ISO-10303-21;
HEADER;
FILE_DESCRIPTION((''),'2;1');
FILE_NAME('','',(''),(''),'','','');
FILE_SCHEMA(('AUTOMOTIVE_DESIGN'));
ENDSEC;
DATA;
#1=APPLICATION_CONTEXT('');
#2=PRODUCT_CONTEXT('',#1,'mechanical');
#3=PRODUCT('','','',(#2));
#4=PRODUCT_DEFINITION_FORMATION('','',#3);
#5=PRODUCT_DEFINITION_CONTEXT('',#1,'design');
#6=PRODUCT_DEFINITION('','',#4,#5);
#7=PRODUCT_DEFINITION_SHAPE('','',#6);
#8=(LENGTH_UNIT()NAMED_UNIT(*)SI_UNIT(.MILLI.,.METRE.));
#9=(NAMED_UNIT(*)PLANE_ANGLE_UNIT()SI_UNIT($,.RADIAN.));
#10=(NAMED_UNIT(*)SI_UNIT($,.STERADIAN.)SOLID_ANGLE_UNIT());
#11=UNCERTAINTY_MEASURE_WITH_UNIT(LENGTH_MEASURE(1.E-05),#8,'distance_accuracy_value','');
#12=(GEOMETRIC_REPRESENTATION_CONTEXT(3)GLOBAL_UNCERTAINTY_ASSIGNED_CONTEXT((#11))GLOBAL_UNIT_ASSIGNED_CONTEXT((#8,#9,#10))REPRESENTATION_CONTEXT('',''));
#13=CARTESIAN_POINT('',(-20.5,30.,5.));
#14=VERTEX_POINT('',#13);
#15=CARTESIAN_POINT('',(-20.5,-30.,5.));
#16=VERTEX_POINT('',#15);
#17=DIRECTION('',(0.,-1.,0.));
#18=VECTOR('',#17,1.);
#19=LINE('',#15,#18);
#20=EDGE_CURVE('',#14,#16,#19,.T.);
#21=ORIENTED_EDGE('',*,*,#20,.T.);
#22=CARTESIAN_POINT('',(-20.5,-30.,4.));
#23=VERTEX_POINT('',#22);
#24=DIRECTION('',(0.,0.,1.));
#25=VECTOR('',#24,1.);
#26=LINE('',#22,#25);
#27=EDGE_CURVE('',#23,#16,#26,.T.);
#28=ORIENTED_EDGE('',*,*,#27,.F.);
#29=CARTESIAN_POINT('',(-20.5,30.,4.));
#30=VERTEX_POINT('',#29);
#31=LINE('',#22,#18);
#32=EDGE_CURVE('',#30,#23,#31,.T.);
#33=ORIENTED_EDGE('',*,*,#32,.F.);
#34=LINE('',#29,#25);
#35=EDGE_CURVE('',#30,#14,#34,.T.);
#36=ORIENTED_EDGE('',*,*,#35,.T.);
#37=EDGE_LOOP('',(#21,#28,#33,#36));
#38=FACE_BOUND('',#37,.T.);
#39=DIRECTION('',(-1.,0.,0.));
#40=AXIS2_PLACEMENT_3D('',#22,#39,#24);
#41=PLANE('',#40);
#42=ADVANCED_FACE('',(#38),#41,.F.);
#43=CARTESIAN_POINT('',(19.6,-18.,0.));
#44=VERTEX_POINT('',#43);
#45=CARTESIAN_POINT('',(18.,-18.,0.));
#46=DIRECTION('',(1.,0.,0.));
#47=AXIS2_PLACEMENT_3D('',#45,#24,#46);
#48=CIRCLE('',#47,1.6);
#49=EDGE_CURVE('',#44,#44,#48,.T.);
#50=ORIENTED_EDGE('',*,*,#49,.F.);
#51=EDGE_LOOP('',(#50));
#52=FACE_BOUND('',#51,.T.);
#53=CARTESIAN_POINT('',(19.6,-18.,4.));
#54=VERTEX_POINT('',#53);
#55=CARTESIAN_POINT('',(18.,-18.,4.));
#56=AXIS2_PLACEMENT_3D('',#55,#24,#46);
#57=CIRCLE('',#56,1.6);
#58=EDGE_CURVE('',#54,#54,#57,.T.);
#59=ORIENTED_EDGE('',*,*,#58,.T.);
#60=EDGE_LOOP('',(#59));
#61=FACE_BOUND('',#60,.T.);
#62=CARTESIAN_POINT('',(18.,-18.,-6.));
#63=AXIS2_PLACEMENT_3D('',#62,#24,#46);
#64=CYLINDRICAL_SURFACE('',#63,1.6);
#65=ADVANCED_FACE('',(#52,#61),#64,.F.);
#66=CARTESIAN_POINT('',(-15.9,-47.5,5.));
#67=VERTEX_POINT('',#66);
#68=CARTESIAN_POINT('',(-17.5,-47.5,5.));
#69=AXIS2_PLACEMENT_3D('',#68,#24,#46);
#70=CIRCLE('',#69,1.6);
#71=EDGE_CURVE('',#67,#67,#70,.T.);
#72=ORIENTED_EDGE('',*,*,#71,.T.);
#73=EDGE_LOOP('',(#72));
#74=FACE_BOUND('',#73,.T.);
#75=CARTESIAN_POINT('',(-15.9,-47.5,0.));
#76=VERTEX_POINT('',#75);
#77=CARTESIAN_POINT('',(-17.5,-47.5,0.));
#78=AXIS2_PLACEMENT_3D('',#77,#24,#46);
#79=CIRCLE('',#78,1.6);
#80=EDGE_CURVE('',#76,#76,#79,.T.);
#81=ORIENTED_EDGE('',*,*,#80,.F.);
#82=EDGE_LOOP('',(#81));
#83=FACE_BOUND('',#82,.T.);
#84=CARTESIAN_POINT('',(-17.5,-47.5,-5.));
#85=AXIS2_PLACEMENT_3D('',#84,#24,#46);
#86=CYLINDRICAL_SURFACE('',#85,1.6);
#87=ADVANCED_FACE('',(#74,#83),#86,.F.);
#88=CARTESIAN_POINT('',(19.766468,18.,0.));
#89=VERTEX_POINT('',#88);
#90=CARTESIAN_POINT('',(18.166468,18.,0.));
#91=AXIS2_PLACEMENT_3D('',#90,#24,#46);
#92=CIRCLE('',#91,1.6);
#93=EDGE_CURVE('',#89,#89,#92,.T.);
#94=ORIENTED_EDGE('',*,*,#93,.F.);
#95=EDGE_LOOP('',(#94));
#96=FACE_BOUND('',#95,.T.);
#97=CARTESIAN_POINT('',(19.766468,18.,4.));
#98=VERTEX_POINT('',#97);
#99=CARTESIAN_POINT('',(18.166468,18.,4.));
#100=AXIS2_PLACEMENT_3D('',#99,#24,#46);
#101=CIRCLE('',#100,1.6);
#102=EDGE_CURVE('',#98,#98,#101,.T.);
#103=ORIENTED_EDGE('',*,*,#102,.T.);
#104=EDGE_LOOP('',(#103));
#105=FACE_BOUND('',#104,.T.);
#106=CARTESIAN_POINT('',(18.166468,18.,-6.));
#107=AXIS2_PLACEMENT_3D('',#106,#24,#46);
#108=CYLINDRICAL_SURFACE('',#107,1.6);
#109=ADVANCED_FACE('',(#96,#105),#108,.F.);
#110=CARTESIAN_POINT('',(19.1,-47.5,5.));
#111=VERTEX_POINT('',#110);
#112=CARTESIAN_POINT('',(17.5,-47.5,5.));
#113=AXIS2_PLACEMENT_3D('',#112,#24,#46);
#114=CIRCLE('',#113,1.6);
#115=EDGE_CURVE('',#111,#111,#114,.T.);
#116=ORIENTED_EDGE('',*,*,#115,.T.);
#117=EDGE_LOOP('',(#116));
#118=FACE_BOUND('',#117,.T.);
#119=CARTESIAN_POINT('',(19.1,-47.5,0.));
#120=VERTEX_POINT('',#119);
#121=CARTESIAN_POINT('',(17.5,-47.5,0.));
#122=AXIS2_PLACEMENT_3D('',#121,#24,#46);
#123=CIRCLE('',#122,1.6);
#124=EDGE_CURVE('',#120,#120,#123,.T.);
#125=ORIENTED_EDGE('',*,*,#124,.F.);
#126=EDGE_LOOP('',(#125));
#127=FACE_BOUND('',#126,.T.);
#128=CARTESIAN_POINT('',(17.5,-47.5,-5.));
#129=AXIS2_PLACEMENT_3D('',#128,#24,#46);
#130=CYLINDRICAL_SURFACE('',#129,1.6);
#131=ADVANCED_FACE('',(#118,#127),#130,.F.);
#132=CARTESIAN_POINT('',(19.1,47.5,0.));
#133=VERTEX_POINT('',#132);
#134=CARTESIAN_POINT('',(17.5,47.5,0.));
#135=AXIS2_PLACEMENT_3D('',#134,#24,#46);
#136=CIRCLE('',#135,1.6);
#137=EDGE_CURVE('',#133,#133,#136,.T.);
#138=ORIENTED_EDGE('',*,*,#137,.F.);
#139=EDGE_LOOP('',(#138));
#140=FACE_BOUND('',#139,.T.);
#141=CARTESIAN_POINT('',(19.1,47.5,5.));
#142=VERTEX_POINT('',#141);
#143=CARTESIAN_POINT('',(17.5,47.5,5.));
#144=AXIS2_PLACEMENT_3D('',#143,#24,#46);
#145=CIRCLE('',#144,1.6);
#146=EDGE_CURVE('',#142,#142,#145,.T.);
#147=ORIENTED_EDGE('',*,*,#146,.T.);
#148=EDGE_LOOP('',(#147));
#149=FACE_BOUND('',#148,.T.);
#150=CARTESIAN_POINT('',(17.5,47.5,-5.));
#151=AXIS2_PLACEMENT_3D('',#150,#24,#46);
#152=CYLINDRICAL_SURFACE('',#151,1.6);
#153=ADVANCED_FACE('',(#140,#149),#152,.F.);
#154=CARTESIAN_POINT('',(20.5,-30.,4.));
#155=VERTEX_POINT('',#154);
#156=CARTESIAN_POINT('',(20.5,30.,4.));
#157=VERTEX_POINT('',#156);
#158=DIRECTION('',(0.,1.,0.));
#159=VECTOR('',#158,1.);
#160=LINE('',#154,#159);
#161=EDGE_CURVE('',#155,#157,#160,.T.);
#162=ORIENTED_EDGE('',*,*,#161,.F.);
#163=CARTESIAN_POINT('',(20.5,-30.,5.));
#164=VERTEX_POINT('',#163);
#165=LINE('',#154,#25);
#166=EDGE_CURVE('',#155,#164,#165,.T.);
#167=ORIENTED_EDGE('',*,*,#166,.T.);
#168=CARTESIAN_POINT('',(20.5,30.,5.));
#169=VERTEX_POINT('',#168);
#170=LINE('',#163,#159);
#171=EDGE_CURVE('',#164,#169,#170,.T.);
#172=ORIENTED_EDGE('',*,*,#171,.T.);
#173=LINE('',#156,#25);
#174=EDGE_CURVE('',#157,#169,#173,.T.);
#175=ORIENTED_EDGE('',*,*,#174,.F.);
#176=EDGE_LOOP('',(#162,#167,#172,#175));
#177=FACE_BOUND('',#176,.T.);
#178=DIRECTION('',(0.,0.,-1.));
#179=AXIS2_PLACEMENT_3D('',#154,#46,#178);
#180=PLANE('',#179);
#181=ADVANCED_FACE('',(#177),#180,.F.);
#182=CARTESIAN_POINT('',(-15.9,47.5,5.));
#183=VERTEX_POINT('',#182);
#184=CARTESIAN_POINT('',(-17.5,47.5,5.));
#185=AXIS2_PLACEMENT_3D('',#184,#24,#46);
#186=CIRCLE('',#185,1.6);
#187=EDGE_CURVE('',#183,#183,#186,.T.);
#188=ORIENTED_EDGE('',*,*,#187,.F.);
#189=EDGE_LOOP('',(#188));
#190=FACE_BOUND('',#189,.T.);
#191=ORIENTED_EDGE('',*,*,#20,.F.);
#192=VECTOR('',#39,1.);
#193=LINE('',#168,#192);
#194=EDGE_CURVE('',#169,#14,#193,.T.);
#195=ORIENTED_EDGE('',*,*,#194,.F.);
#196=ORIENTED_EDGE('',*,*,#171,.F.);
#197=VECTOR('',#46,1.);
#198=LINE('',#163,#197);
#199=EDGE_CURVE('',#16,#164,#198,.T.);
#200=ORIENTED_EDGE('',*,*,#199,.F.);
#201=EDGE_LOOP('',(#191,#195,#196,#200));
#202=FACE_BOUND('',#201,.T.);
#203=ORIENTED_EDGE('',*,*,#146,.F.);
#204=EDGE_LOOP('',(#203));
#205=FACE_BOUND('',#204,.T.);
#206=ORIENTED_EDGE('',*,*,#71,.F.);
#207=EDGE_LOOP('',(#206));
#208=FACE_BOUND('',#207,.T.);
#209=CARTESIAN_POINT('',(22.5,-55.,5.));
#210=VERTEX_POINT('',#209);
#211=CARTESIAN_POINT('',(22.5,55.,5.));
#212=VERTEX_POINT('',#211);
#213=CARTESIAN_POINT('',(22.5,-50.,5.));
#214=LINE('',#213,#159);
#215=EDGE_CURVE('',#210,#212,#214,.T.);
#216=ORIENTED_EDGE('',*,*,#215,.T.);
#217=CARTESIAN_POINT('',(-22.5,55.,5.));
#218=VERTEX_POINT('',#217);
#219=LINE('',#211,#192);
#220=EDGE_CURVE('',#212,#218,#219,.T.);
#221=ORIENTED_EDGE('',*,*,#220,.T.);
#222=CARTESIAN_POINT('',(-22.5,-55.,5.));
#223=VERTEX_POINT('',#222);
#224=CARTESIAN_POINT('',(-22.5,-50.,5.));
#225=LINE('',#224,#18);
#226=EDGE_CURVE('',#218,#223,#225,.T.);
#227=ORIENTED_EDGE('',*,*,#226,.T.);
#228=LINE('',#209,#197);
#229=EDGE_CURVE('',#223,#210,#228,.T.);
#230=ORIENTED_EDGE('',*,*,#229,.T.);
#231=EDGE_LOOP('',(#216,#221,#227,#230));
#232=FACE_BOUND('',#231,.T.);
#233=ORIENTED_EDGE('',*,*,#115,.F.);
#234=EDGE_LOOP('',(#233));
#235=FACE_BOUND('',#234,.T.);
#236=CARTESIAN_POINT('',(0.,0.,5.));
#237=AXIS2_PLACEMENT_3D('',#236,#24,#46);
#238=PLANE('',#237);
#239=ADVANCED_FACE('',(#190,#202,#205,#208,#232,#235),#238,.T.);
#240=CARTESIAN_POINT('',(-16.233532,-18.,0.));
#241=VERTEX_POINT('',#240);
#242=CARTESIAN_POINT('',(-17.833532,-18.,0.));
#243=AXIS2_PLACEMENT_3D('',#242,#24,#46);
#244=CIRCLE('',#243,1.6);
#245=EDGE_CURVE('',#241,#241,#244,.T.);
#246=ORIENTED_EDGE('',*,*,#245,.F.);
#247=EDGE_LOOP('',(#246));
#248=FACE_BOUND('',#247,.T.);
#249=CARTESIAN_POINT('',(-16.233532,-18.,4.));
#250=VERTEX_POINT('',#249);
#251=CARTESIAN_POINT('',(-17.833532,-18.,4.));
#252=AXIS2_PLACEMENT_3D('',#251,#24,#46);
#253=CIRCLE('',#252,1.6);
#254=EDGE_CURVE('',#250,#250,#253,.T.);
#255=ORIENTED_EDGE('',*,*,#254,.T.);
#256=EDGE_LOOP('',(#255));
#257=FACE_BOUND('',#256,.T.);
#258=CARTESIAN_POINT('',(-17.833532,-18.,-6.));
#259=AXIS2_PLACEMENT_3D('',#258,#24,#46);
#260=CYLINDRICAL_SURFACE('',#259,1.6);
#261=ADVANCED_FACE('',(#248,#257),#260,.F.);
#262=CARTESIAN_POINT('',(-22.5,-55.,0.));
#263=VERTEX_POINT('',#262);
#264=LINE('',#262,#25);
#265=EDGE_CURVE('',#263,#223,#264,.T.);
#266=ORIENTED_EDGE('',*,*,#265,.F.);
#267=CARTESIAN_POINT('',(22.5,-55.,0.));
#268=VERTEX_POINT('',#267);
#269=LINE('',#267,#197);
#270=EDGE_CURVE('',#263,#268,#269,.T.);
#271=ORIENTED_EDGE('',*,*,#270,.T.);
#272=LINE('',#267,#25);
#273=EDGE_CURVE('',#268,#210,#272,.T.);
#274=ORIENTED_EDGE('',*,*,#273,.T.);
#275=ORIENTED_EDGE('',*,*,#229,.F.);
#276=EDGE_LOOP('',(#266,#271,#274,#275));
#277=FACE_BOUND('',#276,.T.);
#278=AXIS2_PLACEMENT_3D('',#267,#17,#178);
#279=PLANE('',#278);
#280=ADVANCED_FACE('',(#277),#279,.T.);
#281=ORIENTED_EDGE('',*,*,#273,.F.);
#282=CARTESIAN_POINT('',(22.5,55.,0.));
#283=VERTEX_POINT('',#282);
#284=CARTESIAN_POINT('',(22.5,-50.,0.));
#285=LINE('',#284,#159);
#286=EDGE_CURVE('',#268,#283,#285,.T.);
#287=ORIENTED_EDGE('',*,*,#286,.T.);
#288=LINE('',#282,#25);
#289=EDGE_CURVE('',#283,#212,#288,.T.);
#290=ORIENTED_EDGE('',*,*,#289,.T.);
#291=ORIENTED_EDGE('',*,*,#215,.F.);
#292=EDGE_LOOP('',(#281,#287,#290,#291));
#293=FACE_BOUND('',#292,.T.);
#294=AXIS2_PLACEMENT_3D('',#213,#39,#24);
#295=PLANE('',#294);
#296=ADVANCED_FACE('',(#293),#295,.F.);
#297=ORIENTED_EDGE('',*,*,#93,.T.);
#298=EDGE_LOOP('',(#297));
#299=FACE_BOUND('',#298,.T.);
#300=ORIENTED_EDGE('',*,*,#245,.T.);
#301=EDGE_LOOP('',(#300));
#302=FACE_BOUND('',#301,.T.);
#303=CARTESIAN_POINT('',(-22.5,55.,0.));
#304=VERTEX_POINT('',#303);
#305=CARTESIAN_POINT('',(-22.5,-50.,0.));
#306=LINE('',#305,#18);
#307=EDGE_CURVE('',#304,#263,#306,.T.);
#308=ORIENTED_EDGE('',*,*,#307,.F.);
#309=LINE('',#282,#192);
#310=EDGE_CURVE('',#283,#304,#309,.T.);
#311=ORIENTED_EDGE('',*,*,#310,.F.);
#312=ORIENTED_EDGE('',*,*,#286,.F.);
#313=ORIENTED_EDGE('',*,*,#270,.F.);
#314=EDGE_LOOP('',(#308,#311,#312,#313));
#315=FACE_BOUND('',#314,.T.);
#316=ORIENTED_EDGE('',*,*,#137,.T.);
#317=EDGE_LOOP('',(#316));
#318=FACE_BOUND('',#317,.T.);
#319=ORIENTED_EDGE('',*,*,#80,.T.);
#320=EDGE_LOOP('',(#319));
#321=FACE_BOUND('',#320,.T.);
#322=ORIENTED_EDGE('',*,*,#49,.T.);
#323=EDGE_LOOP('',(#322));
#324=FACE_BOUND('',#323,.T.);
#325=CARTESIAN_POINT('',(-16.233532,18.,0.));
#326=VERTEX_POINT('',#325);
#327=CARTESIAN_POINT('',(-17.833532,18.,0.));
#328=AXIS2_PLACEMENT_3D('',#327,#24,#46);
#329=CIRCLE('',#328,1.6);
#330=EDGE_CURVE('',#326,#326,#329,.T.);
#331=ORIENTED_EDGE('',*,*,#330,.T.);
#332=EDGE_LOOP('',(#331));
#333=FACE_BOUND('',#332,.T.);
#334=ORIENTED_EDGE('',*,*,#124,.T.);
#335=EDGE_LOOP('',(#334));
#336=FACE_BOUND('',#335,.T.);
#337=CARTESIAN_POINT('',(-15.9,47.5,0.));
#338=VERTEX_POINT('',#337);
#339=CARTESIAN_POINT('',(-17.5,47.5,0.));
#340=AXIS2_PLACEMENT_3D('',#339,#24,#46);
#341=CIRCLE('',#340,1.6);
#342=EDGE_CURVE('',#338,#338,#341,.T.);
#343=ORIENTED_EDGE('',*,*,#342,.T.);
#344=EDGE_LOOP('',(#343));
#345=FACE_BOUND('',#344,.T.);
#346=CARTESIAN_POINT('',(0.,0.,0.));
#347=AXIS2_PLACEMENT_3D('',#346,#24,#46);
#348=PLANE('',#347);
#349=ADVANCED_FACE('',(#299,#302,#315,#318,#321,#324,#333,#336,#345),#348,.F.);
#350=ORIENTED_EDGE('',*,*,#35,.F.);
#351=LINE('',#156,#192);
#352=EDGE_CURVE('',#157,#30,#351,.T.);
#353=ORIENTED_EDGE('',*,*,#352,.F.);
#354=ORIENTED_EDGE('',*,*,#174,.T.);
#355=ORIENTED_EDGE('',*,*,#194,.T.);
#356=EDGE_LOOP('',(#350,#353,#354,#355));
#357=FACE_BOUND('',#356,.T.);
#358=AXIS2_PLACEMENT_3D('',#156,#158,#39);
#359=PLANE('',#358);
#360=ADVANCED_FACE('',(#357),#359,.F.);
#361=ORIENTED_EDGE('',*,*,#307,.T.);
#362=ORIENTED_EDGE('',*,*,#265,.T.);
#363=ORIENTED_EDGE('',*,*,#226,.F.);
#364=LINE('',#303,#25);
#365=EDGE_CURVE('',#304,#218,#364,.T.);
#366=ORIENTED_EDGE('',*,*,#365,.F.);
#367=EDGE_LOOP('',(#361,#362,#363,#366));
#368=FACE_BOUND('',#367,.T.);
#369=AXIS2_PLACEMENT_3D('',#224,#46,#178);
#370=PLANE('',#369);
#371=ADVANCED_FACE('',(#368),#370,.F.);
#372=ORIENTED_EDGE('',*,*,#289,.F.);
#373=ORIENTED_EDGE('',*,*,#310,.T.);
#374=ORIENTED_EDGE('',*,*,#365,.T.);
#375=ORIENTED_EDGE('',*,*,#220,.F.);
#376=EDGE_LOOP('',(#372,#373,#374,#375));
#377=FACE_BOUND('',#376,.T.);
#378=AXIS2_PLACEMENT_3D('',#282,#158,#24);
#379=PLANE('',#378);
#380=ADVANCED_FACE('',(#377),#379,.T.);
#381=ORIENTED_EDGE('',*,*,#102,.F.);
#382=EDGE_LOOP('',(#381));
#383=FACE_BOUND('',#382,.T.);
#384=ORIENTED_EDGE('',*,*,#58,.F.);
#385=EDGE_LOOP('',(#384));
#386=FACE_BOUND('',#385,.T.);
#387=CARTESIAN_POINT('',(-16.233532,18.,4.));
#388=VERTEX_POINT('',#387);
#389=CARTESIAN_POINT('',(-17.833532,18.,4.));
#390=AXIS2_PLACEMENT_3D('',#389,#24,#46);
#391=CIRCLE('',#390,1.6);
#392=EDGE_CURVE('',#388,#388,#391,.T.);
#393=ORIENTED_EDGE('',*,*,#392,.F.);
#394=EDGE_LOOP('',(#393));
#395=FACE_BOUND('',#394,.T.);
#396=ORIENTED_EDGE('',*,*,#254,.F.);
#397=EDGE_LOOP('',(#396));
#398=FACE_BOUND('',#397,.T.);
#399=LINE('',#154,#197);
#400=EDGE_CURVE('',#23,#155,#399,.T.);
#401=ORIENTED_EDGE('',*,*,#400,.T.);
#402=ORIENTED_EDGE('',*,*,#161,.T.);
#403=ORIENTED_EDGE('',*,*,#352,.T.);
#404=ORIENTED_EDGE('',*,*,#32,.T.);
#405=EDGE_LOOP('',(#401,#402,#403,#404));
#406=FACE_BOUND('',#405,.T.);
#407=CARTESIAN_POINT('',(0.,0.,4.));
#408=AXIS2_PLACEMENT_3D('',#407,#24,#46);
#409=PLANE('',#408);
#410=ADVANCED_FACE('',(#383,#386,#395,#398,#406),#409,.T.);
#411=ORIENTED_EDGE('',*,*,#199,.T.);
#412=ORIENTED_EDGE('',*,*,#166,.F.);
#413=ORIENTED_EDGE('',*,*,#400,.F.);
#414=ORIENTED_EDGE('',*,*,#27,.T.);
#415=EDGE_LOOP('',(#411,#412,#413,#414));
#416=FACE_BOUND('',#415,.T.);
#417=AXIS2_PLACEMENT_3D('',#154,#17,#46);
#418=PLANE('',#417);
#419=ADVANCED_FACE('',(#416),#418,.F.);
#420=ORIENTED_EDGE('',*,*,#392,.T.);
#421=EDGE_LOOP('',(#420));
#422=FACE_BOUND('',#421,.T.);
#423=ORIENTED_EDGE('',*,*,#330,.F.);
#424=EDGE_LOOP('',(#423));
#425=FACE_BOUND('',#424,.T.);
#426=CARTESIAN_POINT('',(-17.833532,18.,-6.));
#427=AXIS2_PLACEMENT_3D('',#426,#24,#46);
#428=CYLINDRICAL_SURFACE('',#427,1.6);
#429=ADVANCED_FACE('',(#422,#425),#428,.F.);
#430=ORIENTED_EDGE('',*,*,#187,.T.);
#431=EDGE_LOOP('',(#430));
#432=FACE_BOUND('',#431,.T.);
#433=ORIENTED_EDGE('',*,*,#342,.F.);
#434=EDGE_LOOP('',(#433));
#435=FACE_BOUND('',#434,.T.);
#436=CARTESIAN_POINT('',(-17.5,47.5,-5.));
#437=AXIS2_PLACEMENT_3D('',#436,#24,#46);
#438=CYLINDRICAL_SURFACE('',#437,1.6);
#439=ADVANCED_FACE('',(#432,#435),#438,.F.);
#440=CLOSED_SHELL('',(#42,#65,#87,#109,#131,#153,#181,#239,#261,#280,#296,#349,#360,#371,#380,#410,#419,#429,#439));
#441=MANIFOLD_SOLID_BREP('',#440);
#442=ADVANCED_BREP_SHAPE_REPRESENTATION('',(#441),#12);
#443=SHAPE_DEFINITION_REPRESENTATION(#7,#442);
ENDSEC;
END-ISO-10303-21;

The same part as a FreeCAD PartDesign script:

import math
import FreeCAD as App
import Part
import Sketcher
from FreeCAD import Vector


def add_polygon(sketch, points):
    """Adds a closed chain of lines whose ends are joined by coincident constraints."""
    first, n = sketch.GeometryCount, len(points)
    for a, b in zip(points, points[1:] + points[:1]):
        sketch.addGeometry(Part.LineSegment(App.Vector(*a, 0), App.Vector(*b, 0)), False)
    for i in range(n):
        sketch.addConstraint(Sketcher.Constraint("Coincident", first + i, 2, first + (i + 1) % n, 1))

doc = App.newDocument("Part")
body = doc.addObject("PartDesign::Body", "Body")

# Sketch on XY plane
sketch1 = doc.addObject("Sketcher::SketchObject", "Sketch")
body.addObject(sketch1)
sketch1.AttachmentSupport = (doc.XY_Plane, [""])
sketch1.MapMode = "FlatFace"
add_polygon(sketch1, [(-22, 50), (-22, -50), (22, -50), (22, 50)])  # lines 0-3
sketch1.addConstraint([
    Sketcher.Constraint("Vertical", 0),
    Sketcher.Constraint("Horizontal", 1),
    Sketcher.Constraint("Vertical", 2),
    Sketcher.Constraint("Horizontal", 3),
    Sketcher.Constraint("Symmetric", 0, 2, 2, 2, -1, 1),
    Sketcher.Constraint("DistanceX", 1, 1, 1, 2, 45.0),
    Sketcher.Constraint("DistanceY", 0, 2, 0, 1, 100.0),
])
pad1 = doc.addObject("PartDesign::Pad", "Pad")
body.addObject(pad1)
pad1.Profile = sketch1
pad1.Length = 5

# Sketch on XY plane
sketch2 = doc.addObject("Sketcher::SketchObject", "Sketch001")
body.addObject(sketch2)
sketch2.AttachmentSupport = (doc.XY_Plane, [""])
sketch2.MapMode = "FlatFace"
sketch2.AttachmentOffset = App.Placement(Vector(0, 0, 5), App.Rotation())
add_polygon(sketch2, [(-20, 30), (-20, -30), (20, -30), (20, 30)])  # lines 0-3
sketch2.addConstraint([
    Sketcher.Constraint("Vertical", 0),
    Sketcher.Constraint("Horizontal", 1),
    Sketcher.Constraint("Vertical", 2),
    Sketcher.Constraint("Horizontal", 3),
    Sketcher.Constraint("Symmetric", 0, 2, 2, 2, -1, 1),
    Sketcher.Constraint("DistanceX", 1, 1, 1, 2, 41.0),
    Sketcher.Constraint("DistanceY", 0, 2, 0, 1, 60.0),
])
pocket1 = doc.addObject("PartDesign::Pocket", "Pocket")
body.addObject(pocket1)
pocket1.Profile = sketch2
pocket1.Length = 1

# Sketch on XY plane
sketch3 = doc.addObject("Sketcher::SketchObject", "Sketch002")
body.addObject(sketch3)
sketch3.AttachmentSupport = (doc.XY_Plane, [""])
sketch3.MapMode = "FlatFace"
sketch3.AttachmentOffset = App.Placement(Vector(0, 0, 5), App.Rotation())
add_polygon(sketch3, [(-22, 55), (-22, 50), (22, 50), (22, 55)])  # lines 0-3
add_polygon(sketch3, [(-22, -50), (-22, -55), (22, -55), (22, -50)])  # lines 4-7
sketch3.addConstraint([
    Sketcher.Constraint("Vertical", 0),
    Sketcher.Constraint("Horizontal", 1),
    Sketcher.Constraint("Vertical", 2),
    Sketcher.Constraint("Horizontal", 3),
    Sketcher.Constraint("Vertical", 4),
    Sketcher.Constraint("Horizontal", 5),
    Sketcher.Constraint("Vertical", 6),
    Sketcher.Constraint("Horizontal", 7),
    Sketcher.Constraint("Symmetric", 2, 2, 4, 2, -1, 1),
    Sketcher.Constraint("Symmetric", 0, 2, 6, 2, -1, 1),
    Sketcher.Constraint("Vertical", 3, 2, 4, 2),
    Sketcher.Constraint("DistanceX", 1, 1, 1, 2, 45.0),
    Sketcher.Constraint("DistanceY", 0, 2, 0, 1, 5.0),
    Sketcher.Constraint("DistanceY", -1, 1, 0, 2, 50.0),
])
pad2 = doc.addObject("PartDesign::Pad", "Pad001")
body.addObject(pad2)
pad2.Profile = sketch3
pad2.Length = 5
pad2.Reversed = True

# Sketch on XY plane
sketch4 = doc.addObject("Sketcher::SketchObject", "Sketch003")
body.addObject(sketch4)
sketch4.AttachmentSupport = (doc.XY_Plane, [""])
sketch4.MapMode = "FlatFace"
sketch4.AttachmentOffset = App.Placement(Vector(0, 0, 5), App.Rotation())
sketch4.addGeometry([
    Part.Circle(Vector(-17.5, 47.5, 0), Vector(0, 0, 1), 1.6),
    Part.Circle(Vector(17.5, 47.5, 0), Vector(0, 0, 1), 1.6),
    Part.Circle(Vector(-17.5, -47.5, 0), Vector(0, 0, 1), 1.6),
    Part.Circle(Vector(17.5, -47.5, 0), Vector(0, 0, 1), 1.6),
], False)
sketch4.addConstraint([
    Sketcher.Constraint("Equal", 0, 1),
    Sketcher.Constraint("Equal", 1, 2),
    Sketcher.Constraint("Equal", 2, 3),
    Sketcher.Constraint("Symmetric", 1, 3, 2, 3, -1, 1),
    Sketcher.Constraint("Symmetric", 0, 3, 3, 3, -1, 1),
    Sketcher.Constraint("Symmetric", 0, 3, 1, 3, -2),
    Sketcher.Constraint("Diameter", 0, 3.2),
    Sketcher.Constraint("DistanceX", 0, 3, 1, 3, 35.0),
    Sketcher.Constraint("DistanceY", 2, 3, 0, 3, 95.0),
])
pocket2 = doc.addObject("PartDesign::Pocket", "Pocket001")
body.addObject(pocket2)
pocket2.Profile = sketch4
pocket2.Length = 10

# Sketch on XY plane
sketch5 = doc.addObject("Sketcher::SketchObject", "Sketch004")
body.addObject(sketch5)
sketch5.AttachmentSupport = (doc.XY_Plane, [""])
sketch5.MapMode = "FlatFace"
sketch5.AttachmentOffset = App.Placement(Vector(0, 0, 4), App.Rotation())
sketch5.addGeometry([
    Part.ArcOfCircle(Part.Circle(Vector(-17.8, 18, 0), Vector(0, 0, 1), 1.6), math.radians(-90), math.radians(0)),  # 0
    Part.ArcOfCircle(Part.Circle(Vector(-17.8, 18, 0), Vector(0, 0, 1), 1.6), math.radians(0), math.radians(270)),  # 1
    Part.Circle(Vector(-17.8, -18, 0), Vector(0, 0, 1), 1.6),  # 2
    Part.Circle(Vector(18, -18, 0), Vector(0, 0, 1), 1.6),  # 3
    Part.Circle(Vector(18.2, 18, 0), Vector(0, 0, 1), 1.6),  # 4
], False)
sketch5.addConstraint([
    Sketcher.Constraint("Tangent", 0, 1, 1, 2),
    Sketcher.Constraint("Coincident", 1, 1, 0, 2),
    Sketcher.Constraint("Equal", 1, 2),
    Sketcher.Constraint("Equal", 2, 3),
    Sketcher.Constraint("Equal", 3, 4),
    Sketcher.Constraint("Symmetric", 0, 3, 2, 3, -1),
    Sketcher.Constraint("Horizontal", 2, 3, 3, 3),
    Sketcher.Constraint("Horizontal", 1, 3, 4, 3),
    Sketcher.Constraint("Horizontal", 4, 3, 1, 1),
    Sketcher.Constraint("Vertical", 2, 3, 0, 1),
    Sketcher.Constraint("Diameter", 2, 3.2),
    Sketcher.Constraint("DistanceY", -1, 1, 0, 3, 18.0),
    Sketcher.Constraint("DistanceX", -1, 1, 3, 3, 18.0),
    Sketcher.Constraint("DistanceX", 0, 3, 4, 3, 36.0),
    Sketcher.Constraint("DistanceX", 0, 3, -1, 1, 17.833532),
])
pocket3 = doc.addObject("PartDesign::Pocket", "Pocket002")
body.addObject(pocket3)
pocket3.Profile = sketch5
pocket3.Length = 10

doc.recompute()
